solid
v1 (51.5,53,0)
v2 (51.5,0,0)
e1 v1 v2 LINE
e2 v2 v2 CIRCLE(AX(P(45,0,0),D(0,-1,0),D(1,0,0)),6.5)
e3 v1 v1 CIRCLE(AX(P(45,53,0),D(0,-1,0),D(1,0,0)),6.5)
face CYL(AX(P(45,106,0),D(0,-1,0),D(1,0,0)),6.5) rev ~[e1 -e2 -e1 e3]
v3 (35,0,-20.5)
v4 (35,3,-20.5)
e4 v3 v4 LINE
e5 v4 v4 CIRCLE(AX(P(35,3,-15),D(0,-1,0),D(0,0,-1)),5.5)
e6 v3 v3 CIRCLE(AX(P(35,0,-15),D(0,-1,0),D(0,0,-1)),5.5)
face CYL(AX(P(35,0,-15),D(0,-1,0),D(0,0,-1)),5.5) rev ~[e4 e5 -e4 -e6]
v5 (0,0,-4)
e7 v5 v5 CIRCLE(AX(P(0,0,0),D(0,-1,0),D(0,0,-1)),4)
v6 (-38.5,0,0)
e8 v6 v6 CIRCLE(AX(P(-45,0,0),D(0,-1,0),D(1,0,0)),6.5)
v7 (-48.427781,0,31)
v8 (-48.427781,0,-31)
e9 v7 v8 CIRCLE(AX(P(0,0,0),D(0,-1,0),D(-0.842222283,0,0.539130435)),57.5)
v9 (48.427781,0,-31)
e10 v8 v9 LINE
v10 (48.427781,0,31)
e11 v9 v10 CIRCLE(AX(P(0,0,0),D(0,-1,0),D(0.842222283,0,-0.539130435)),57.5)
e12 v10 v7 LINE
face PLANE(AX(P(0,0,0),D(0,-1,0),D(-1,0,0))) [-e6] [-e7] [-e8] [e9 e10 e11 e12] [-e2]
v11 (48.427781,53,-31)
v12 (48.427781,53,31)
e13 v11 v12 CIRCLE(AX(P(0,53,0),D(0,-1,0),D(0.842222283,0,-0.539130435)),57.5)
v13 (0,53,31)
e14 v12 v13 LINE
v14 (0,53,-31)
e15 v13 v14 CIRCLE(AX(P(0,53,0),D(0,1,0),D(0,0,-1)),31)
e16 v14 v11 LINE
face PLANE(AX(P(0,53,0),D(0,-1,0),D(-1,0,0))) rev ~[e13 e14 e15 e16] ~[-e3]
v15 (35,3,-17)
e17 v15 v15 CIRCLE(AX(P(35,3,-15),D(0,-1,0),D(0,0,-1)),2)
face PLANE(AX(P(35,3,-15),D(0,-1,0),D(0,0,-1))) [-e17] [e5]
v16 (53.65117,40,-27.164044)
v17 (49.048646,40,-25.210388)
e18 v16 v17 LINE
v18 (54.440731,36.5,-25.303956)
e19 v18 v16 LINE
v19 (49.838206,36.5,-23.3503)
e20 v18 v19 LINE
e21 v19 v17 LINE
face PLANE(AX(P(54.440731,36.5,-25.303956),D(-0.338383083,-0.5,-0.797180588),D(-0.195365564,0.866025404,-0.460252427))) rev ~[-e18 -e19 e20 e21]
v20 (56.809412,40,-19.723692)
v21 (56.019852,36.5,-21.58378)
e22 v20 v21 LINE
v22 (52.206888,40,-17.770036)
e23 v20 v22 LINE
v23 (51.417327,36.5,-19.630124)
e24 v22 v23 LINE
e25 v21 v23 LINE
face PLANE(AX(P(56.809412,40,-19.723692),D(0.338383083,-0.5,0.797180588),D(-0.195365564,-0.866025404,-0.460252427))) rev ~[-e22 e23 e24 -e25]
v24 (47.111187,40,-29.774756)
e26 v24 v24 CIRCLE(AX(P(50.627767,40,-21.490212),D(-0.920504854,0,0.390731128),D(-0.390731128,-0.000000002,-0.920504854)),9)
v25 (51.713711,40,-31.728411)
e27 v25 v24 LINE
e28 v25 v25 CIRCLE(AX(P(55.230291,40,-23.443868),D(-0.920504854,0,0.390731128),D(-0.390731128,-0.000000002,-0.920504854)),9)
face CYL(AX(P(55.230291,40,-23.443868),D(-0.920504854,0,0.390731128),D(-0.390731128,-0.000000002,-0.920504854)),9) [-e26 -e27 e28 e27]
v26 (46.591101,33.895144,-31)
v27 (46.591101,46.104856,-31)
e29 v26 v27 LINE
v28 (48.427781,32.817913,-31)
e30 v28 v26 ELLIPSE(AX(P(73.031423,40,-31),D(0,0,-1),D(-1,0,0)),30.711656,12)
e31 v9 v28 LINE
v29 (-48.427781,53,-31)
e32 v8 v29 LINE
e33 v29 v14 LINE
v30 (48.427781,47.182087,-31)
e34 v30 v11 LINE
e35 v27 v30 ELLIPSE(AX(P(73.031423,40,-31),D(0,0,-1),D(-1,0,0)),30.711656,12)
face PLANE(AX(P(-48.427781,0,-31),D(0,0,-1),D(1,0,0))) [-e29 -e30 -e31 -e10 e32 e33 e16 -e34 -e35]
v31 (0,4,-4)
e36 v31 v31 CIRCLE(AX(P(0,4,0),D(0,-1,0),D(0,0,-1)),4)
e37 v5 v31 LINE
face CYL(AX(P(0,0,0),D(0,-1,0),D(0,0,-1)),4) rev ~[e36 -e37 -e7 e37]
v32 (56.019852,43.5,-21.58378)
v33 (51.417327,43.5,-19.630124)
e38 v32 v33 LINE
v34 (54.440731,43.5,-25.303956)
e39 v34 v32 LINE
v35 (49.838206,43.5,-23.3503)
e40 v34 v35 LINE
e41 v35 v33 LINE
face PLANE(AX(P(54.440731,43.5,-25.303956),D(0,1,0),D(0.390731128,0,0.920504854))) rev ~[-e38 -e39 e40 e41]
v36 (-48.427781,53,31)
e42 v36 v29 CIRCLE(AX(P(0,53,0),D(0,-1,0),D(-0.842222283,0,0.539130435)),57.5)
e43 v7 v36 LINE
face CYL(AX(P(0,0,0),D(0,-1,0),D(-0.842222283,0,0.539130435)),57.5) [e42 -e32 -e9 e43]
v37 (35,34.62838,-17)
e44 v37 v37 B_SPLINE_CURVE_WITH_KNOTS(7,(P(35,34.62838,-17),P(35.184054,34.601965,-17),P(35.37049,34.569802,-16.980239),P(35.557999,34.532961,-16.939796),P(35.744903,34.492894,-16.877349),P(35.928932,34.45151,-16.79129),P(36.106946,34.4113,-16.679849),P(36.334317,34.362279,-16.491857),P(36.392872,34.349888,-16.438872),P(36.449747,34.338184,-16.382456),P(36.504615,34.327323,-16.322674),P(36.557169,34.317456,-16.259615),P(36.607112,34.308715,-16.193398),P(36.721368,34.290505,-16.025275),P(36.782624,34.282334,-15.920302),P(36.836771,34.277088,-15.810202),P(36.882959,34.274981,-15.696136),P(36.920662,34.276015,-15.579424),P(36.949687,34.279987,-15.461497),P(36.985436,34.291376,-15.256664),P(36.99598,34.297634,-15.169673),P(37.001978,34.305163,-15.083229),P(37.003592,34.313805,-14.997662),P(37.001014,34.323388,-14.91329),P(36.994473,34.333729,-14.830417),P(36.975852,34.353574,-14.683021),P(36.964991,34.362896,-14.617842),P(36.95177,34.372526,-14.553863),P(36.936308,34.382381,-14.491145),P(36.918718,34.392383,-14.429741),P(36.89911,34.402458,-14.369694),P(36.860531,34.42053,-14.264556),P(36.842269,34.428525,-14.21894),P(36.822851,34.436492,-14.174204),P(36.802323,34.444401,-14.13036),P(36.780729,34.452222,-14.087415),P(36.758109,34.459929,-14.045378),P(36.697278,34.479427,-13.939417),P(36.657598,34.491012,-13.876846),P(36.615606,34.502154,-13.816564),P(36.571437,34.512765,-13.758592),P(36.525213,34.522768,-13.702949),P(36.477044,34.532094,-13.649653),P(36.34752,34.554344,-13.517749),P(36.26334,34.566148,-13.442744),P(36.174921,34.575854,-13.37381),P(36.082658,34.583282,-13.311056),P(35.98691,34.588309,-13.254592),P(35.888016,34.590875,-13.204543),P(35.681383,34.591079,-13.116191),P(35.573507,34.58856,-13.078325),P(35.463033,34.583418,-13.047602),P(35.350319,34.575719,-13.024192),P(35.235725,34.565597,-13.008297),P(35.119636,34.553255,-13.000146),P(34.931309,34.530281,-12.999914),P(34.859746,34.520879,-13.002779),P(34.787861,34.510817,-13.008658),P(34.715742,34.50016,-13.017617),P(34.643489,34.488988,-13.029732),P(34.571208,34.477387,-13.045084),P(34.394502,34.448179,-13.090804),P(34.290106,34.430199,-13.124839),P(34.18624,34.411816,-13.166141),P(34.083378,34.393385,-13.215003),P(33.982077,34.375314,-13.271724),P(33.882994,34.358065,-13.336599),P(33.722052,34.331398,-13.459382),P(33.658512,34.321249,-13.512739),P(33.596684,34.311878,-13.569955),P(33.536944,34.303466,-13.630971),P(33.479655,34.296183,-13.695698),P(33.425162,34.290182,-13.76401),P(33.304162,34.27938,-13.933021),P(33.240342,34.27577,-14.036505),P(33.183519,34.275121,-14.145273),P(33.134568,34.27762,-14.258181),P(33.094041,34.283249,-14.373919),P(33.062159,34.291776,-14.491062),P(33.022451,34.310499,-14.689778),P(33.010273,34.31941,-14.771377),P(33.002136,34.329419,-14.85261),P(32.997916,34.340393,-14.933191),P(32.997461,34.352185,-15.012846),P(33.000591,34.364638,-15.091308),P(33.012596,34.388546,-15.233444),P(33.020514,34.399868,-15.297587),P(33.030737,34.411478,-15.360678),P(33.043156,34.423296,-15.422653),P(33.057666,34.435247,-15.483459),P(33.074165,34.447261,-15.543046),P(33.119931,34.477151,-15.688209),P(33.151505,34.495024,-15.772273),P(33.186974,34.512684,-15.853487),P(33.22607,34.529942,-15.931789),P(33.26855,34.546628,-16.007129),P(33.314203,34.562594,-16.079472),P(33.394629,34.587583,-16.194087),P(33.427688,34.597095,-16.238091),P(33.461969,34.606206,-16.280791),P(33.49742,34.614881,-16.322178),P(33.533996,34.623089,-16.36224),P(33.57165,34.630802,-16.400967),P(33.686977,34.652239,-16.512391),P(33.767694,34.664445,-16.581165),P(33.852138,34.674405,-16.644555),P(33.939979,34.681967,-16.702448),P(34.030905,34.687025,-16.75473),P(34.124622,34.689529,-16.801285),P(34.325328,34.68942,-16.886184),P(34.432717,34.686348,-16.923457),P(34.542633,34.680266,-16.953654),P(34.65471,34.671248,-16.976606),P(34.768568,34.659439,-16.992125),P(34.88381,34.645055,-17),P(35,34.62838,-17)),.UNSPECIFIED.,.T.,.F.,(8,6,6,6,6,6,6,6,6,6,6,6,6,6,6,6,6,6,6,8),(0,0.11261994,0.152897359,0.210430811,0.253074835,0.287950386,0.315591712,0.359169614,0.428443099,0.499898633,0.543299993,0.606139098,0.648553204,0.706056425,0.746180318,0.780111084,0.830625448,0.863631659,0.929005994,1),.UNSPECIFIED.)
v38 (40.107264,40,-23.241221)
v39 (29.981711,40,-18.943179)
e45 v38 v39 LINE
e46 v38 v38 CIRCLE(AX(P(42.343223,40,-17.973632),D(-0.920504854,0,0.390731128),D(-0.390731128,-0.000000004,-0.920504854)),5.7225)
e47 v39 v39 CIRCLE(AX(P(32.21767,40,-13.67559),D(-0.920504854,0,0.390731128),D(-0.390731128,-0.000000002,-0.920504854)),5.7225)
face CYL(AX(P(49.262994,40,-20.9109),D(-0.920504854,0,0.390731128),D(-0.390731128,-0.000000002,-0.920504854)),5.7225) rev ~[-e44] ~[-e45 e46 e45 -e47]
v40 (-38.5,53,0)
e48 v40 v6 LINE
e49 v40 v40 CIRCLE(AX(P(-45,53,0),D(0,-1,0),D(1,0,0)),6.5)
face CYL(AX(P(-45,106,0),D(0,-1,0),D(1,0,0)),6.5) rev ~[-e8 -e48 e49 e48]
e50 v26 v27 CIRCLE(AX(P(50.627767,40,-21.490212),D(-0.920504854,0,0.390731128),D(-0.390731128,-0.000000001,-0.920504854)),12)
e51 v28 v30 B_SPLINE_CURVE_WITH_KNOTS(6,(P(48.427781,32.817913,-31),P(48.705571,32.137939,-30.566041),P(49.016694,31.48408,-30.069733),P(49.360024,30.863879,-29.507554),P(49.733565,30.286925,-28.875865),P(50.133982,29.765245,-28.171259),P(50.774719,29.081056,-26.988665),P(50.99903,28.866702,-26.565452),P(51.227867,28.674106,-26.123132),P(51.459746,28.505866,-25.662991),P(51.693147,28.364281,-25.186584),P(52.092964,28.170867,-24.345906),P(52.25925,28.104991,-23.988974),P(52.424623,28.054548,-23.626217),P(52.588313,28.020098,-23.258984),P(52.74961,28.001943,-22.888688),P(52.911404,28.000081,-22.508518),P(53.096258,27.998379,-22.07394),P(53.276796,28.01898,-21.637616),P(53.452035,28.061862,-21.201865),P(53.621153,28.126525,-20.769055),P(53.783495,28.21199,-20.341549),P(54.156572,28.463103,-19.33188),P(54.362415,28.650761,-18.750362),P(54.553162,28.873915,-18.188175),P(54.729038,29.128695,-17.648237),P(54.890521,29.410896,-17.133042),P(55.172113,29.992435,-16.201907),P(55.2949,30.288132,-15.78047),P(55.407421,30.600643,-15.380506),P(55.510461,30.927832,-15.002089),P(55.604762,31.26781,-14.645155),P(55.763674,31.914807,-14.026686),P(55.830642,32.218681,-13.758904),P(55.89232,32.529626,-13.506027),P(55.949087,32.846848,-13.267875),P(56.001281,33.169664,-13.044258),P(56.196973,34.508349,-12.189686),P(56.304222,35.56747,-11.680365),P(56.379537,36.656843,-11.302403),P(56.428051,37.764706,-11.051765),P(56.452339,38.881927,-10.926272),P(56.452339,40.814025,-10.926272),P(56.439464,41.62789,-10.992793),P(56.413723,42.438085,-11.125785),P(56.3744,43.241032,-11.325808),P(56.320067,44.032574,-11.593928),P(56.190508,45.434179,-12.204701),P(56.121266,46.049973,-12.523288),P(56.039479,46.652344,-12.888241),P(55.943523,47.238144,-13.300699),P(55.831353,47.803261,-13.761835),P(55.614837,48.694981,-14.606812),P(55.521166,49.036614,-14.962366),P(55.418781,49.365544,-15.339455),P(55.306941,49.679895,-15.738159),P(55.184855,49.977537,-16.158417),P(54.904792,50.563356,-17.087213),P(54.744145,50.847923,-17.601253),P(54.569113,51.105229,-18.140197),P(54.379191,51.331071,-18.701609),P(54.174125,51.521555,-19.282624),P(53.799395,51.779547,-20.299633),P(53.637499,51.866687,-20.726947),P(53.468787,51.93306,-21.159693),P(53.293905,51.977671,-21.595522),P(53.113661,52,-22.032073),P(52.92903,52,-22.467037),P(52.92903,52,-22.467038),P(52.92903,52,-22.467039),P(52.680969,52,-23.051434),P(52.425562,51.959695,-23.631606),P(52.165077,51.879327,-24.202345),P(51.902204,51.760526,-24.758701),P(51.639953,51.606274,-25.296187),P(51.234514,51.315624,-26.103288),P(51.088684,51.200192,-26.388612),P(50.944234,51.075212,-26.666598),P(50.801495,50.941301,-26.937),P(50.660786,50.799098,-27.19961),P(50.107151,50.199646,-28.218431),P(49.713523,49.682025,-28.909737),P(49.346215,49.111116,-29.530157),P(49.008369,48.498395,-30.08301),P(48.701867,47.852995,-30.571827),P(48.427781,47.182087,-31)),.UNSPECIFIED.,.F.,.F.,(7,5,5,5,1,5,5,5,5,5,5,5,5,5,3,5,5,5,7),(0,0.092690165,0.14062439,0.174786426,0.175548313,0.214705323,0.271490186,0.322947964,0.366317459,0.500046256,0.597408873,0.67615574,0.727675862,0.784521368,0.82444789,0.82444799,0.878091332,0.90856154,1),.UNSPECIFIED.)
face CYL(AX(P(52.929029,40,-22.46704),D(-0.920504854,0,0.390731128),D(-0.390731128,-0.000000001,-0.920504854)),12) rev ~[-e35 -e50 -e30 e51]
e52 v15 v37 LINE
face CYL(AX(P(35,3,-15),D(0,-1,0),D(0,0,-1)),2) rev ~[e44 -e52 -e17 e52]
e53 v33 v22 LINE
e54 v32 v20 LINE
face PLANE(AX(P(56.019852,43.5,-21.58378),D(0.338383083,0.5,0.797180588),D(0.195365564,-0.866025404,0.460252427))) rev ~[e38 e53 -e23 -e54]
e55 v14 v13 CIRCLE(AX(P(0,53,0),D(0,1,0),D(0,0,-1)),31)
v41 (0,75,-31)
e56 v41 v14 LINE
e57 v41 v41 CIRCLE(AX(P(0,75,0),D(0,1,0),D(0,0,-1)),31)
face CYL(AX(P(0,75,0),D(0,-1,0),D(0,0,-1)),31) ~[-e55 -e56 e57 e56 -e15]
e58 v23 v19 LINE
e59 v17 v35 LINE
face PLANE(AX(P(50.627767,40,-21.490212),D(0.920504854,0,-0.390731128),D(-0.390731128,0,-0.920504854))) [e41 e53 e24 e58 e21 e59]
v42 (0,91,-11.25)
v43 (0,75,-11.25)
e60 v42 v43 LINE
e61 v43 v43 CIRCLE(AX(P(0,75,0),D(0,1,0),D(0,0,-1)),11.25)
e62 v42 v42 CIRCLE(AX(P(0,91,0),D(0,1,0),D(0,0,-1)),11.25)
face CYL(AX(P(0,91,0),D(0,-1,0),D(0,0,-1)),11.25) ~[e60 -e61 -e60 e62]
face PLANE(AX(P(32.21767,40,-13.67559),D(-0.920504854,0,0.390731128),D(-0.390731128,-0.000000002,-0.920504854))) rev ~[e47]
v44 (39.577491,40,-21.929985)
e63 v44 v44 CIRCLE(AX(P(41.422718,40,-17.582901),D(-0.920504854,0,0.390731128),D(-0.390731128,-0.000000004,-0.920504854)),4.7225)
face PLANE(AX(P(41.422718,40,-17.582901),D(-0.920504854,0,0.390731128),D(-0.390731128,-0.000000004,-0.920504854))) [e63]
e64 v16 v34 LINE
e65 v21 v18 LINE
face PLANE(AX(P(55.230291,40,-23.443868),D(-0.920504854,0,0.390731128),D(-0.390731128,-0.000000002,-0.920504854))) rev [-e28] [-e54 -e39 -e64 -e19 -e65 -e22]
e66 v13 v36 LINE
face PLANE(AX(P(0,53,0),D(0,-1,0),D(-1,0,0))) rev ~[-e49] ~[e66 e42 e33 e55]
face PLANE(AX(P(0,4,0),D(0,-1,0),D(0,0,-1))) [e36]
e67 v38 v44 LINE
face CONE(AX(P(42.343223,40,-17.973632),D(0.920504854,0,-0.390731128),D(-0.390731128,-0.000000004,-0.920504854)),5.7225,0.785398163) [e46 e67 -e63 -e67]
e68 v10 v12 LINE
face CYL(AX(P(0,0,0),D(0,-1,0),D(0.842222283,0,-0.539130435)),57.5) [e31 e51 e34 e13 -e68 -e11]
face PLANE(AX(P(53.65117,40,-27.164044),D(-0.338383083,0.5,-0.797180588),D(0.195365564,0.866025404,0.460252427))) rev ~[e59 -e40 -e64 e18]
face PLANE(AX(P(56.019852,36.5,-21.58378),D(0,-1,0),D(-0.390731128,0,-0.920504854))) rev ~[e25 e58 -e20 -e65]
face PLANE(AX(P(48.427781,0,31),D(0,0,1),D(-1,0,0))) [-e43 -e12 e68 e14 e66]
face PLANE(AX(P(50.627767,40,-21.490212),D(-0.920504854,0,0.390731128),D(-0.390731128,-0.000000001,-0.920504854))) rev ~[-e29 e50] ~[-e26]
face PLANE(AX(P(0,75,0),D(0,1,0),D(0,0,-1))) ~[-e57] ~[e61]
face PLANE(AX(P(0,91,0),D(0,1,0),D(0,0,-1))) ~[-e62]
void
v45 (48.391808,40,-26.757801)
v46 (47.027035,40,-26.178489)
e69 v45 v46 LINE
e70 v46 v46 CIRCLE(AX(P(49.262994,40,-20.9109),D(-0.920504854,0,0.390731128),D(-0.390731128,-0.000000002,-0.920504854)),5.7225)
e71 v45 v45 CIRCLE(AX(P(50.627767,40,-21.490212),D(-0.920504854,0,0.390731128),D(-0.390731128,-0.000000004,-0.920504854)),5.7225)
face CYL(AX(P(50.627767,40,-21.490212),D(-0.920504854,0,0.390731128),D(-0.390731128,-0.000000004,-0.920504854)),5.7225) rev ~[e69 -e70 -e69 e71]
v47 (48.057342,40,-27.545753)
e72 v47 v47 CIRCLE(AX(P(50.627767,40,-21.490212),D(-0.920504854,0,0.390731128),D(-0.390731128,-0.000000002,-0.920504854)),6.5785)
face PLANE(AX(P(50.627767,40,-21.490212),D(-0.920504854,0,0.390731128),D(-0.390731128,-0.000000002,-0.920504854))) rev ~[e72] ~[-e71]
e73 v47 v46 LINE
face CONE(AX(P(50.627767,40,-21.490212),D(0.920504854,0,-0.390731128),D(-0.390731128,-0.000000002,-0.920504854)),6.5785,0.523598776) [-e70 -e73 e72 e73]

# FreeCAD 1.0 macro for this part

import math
import FreeCAD as App
import Part
import Sketcher

V = App.Vector
Q = App.Units.Quantity


def add_polygon(sketch, points):
    """Adds a closed chain of lines whose ends are joined by coincident constraints."""
    first, n = sketch.GeometryCount, len(points)
    for a, b in zip(points, points[1:] + points[:1]):
        sketch.addGeometry(Part.LineSegment(App.Vector(*a, 0), App.Vector(*b, 0)), False)
    for i in range(n):
        sketch.addConstraint(Sketcher.Constraint("Coincident", first + i, 2, first + (i + 1) % n, 1))

doc = App.newDocument("Part")
body = doc.addObject("PartDesign::Body", "Body")

sketch1 = body.newObject("Sketcher::SketchObject", "Sketch")
sketch1.AttachmentSupport = (doc.getObject("XZ_Plane"), [""])
sketch1.MapMode = "FlatFace"
sketch1.addGeometry([
    Part.LineSegment(V(48, -31, 0), V(-48, -31, 0)),
    Part.ArcOfCircle(Part.Circle(V(0, 0, 0), V(0, 0, 1), 58), math.radians(147), math.radians(213)),
    Part.LineSegment(V(-48, 31, 0), V(48, 31, 0)),
    Part.ArcOfCircle(Part.Circle(V(0, 0, 0), V(0, 0, 1), 58), math.radians(-33), math.radians(33)),
], False)
sketch1.addConstraint([
    Sketcher.Constraint("Coincident", 0, 2, 1, 2),
    Sketcher.Constraint("Coincident", 1, 1, 2, 1),
    Sketcher.Constraint("Coincident", 2, 2, 3, 2),
    Sketcher.Constraint("Coincident", 3, 1, 0, 1),
    Sketcher.Constraint("Horizontal", 0),
    Sketcher.Constraint("Horizontal", 2),
    Sketcher.Constraint("Coincident", 1, 3, -1, 1),
    Sketcher.Constraint("Coincident", 3, 3, -1, 1),
    Sketcher.Constraint("Equal", 1, 3),
    Sketcher.Constraint("Vertical", 0, 2, 1, 1),
    Sketcher.Constraint("Radius", 1, Q("57.5 mm")),
    Sketcher.Constraint("DistanceY", 0, 2, -1, 1, Q("31 mm")),
])
pad1 = body.newObject("PartDesign::Pad", "Pad")
pad1.Profile = sketch1
pad1.Length = 53
pad1.Reversed = True

sketch2 = body.newObject("Sketcher::SketchObject", "Sketch001")
sketch2.AttachmentSupport = (doc.getObject("XY_Plane"), [""])
sketch2.MapMode = "FlatFace"
add_polygon(sketch2, [(0, 91), (-11, 91), (-11, 75), (-31, 75), (-31, 53), (0, 53)])
sketch2.addConstraint([
    Sketcher.Constraint("Horizontal", 0),
    Sketcher.Constraint("Vertical", 1),
    Sketcher.Constraint("Horizontal", 2),
    Sketcher.Constraint("Vertical", 3),
    Sketcher.Constraint("Horizontal", 4),
    Sketcher.Constraint("Vertical", 5),
    Sketcher.Constraint("PointOnObject", 4, 2, -2),
    Sketcher.Constraint("DistanceX", 4, 1, 4, 2, Q("31 mm")),
    Sketcher.Constraint("DistanceY", 1, 2, 1, 1, Q("16 mm")),
    Sketcher.Constraint("DistanceY", 3, 2, 3, 1, Q("22 mm")),
    Sketcher.Constraint("DistanceY", -1, 1, 0, 2, Q("91 mm")),
    Sketcher.Constraint("DistanceX", 0, 2, 0, 1, Q("11.25 mm")),
])
revolution = body.newObject("PartDesign::Revolution", "Revolution")
revolution.Profile = sketch2
revolution.ReferenceAxis = (sketch2, ["V_Axis"])
revolution.Angle = 360

sketch3 = body.newObject("Sketcher::SketchObject", "Sketch002")
sketch3.AttachmentSupport = (doc.getObject("XZ_Plane"), [""])
sketch3.MapMode = "FlatFace"
sketch3.AttachmentOffset = App.Placement(V(0, 0, -53), App.Rotation())
sketch3.addGeometry([
    Part.Circle(V(-45, 0, 0), V(0, 0, 1), 6),
    Part.Circle(V(45, 0, 0), V(0, 0, 1), 6),
], False)
sketch3.addConstraint([
    Sketcher.Constraint("Equal", 0, 1),
    Sketcher.Constraint("Symmetric", 0, 3, 1, 3, -1, 1),
    Sketcher.Constraint("PointOnObject", 0, 3, -1),
    Sketcher.Constraint("Diameter", 0, Q("13 mm")),
    Sketcher.Constraint("DistanceX", 0, 3, -1, 1, Q("45 mm")),
])
doc.recompute()
hole = body.newObject("PartDesign::Hole", "Hole")
hole.Profile = sketch3
hole.ThreadType = "None"
hole.Diameter = 13
hole.DepthType = "Dimension"
hole.Depth = 53
hole.DrillPoint = "Flat"
hole.Reversed = True

sketch4 = body.newObject("Sketcher::SketchObject", "Sketch003")
sketch4.AttachmentSupport = (doc.getObject("XZ_Plane"), [""])
sketch4.MapMode = "FlatFace"
sketch4.addGeometry(Part.Circle(V(0, 0, 0), V(0, 0, 1), 4), False)
sketch4.addConstraint([
    Sketcher.Constraint("Coincident", 0, 3, -1, 1),
    Sketcher.Constraint("Diameter", 0, Q("8 mm")),
])
pocket1 = body.newObject("PartDesign::Pocket", "Pocket")
pocket1.Profile = sketch4
pocket1.Length = 4

sketch5 = body.newObject("Sketcher::SketchObject", "Sketch004")
sketch5.AttachmentSupport = (doc.getObject("XZ_Plane"), [""])
sketch5.MapMode = "FlatFace"
sketch5.addGeometry(Part.Circle(V(35, -15, 0), V(0, 0, 1), 6), False)
sketch5.addConstraint([
    Sketcher.Constraint("Diameter", 0, Q("11 mm")),
    Sketcher.Constraint("DistanceX", -1, 1, 0, 3, Q("35 mm")),
    Sketcher.Constraint("DistanceY", 0, 3, -1, 1, Q("15 mm")),
])
pocket2 = body.newObject("PartDesign::Pocket", "Pocket001")
pocket2.Profile = sketch5
pocket2.Length = 3

sketch6 = body.newObject("Sketcher::SketchObject", "Sketch005")
sketch6.AttachmentSupport = (doc.getObject("XZ_Plane"), [""])
sketch6.MapMode = "FlatFace"
sketch6.AttachmentOffset = App.Placement(V(0, 0, -3), App.Rotation())
sketch6.addGeometry(Part.Circle(V(35, -15, 0), V(0, 0, 1), 2), False)
sketch6.addConstraint([
    Sketcher.Constraint("Diameter", 0, Q("4 mm")),
    Sketcher.Constraint("DistanceX", -1, 1, 0, 3, Q("35 mm")),
    Sketcher.Constraint("DistanceY", 0, 3, -1, 1, Q("15 mm")),
])
pocket3 = body.newObject("PartDesign::Pocket", "Pocket002")
pocket3.Profile = sketch6
pocket3.Length = 33

sketch7 = body.newObject("Sketcher::SketchObject", "Sketch006")
sketch7.Placement = App.Placement(V(0, 0, 0), App.Rotation(V(0.920504854, 0, -0.390731128), V(0, 1.000000001, 0), V(0.390731128, 0, 0.920504854), "ZXY"))
add_polygon(sketch7, [(55, 28), (57.5, 28), (57.5, 40), (35, 40), (35, 34.3), (53.5, 34.3), (55, 33.4)])
sketch7.addGeometry(Part.LineSegment(V(57.5, 40, 0), V(35, 40, 0)), True)
sketch7.addConstraint([
    Sketcher.Constraint("Horizontal", 0),
    Sketcher.Constraint("Vertical", 1),
    Sketcher.Constraint("Horizontal", 2),
    Sketcher.Constraint("Vertical", 3),
    Sketcher.Constraint("Horizontal", 4),
    Sketcher.Constraint("Vertical", 6),
    Sketcher.Constraint("Horizontal", 7),
    Sketcher.Constraint("Coincident", 7, 1, 1, 2),
    Sketcher.Constraint("Vertical", 3, 2, 7, 2),
    Sketcher.Constraint("DistanceY", 1, 1, 1, 2, Q("12 mm")),
    Sketcher.Constraint("Angle", 5, Q("-30 deg")),
    Sketcher.Constraint("DistanceX", 0, 1, 0, 2, Q("2.5 mm")),
    Sketcher.Constraint("DistanceX", 2, 2, 2, 1, Q("22.5 mm")),
    Sketcher.Constraint("DistanceY", -1, 1, 0, 2, Q("28 mm")),
    Sketcher.Constraint("DistanceX", -1, 1, 2, 2, Q("35 mm")),
    Sketcher.Constraint("Distance", 5, Q("1.712 mm")),
    Sketcher.Constraint("DistanceY", 3, 2, 3, 1, Q("5.7225 mm")),
])
groove = body.newObject("PartDesign::Groove", "Groove")
groove.Profile = sketch7
groove.ReferenceAxis = (sketch7, ["Axis0"])
groove.Angle = 360

sketch8 = body.newObject("Sketcher::SketchObject", "Sketch007")
sketch8.Placement = App.Placement(V(0, 0, 0), App.Rotation(V(0.920504854, 0, -0.390731128), V(0, 1.000000001, 0), V(0.390731128, 0, 0.920504854), "ZXY"))
add_polygon(sketch8, [(55, 34.3), (55, 31), (60, 31), (60, 40), (45, 40), (45, 35.3), (46, 34.3)])
sketch8.addGeometry(Part.LineSegment(V(60, 40, 0), V(45, 40, 0)), True)
sketch8.addConstraint([
    Sketcher.Constraint("Vertical", 0),
    Sketcher.Constraint("Horizontal", 1),
    Sketcher.Constraint("Vertical", 2),
    Sketcher.Constraint("Horizontal", 3),
    Sketcher.Constraint("Vertical", 4),
    Sketcher.Constraint("Horizontal", 6),
    Sketcher.Constraint("Horizontal", 7),
    Sketcher.Constraint("Coincident", 7, 1, 2, 2),
    Sketcher.Constraint("Vertical", 4, 2, 7, 2),
    Sketcher.Constraint("Equal", 6, 2),
    Sketcher.Constraint("DistanceX", 1, 1, 1, 2, Q("5 mm")),
    Sketcher.Constraint("DistanceX", 3, 2, 3, 1, Q("15 mm")),
    Sketcher.Constraint("DistanceX", 6, 1, 6, 2, Q("9 mm")),
    Sketcher.Constraint("Angle", 5, Q("-45 deg")),
    Sketcher.Constraint("DistanceX", -1, 1, 0, 2, Q("55 mm")),
    Sketcher.Constraint("DistanceY", -1, 1, 0, 2, Q("31 mm")),
    Sketcher.Constraint("DistanceY", 0, 2, 0, 1, Q("3.2775 mm")),
])
revolution2 = body.newObject("PartDesign::Revolution", "Revolution001")
revolution2.Profile = sketch8
revolution2.ReferenceAxis = (sketch8, ["Axis0"])
revolution2.Angle = 360

sketch9 = body.newObject("Sketcher::SketchObject", "Sketch008")
sketch9.Placement = App.Placement(V(55.230291, 0, -23.443868), App.Rotation(V(-0.390731128, 0, -0.920504854), V(0, 1.000000001, 0), V(0.920504854, 0, -0.390731128), "ZXY"))
add_polygon(sketch9, [(4, 40), (2, 43.5), (-2, 43.5), (-4, 40), (-2, 36.5), (2, 36.5)])
sketch9.addConstraint([
    Sketcher.Constraint("Horizontal", 1),
    Sketcher.Constraint("Horizontal", 4),
    Sketcher.Constraint("Symmetric", 2, 2, 5, 2, -2),
    Sketcher.Constraint("Parallel", 0, 3),
    Sketcher.Constraint("Parallel", 2, 5),
    Sketcher.Constraint("Vertical", 1, 2, 3, 2),
    Sketcher.Constraint("Vertical", 0, 2, 4, 2),
    Sketcher.Constraint("Angle", 0, Q("120 deg")),
    Sketcher.Constraint("DistanceY", -1, 1, 2, 2, Q("40 mm")),
    Sketcher.Constraint("DistanceY", 3, 2, 1, 2, Q("7 mm")),
    Sketcher.Constraint("DistanceX", 1, 2, 1, 1, Q("4.041452 mm")),
])
pocket4 = body.newObject("PartDesign::Pocket", "Pocket003")
pocket4.Profile = sketch9
pocket4.Length = 5

doc.recompute()
